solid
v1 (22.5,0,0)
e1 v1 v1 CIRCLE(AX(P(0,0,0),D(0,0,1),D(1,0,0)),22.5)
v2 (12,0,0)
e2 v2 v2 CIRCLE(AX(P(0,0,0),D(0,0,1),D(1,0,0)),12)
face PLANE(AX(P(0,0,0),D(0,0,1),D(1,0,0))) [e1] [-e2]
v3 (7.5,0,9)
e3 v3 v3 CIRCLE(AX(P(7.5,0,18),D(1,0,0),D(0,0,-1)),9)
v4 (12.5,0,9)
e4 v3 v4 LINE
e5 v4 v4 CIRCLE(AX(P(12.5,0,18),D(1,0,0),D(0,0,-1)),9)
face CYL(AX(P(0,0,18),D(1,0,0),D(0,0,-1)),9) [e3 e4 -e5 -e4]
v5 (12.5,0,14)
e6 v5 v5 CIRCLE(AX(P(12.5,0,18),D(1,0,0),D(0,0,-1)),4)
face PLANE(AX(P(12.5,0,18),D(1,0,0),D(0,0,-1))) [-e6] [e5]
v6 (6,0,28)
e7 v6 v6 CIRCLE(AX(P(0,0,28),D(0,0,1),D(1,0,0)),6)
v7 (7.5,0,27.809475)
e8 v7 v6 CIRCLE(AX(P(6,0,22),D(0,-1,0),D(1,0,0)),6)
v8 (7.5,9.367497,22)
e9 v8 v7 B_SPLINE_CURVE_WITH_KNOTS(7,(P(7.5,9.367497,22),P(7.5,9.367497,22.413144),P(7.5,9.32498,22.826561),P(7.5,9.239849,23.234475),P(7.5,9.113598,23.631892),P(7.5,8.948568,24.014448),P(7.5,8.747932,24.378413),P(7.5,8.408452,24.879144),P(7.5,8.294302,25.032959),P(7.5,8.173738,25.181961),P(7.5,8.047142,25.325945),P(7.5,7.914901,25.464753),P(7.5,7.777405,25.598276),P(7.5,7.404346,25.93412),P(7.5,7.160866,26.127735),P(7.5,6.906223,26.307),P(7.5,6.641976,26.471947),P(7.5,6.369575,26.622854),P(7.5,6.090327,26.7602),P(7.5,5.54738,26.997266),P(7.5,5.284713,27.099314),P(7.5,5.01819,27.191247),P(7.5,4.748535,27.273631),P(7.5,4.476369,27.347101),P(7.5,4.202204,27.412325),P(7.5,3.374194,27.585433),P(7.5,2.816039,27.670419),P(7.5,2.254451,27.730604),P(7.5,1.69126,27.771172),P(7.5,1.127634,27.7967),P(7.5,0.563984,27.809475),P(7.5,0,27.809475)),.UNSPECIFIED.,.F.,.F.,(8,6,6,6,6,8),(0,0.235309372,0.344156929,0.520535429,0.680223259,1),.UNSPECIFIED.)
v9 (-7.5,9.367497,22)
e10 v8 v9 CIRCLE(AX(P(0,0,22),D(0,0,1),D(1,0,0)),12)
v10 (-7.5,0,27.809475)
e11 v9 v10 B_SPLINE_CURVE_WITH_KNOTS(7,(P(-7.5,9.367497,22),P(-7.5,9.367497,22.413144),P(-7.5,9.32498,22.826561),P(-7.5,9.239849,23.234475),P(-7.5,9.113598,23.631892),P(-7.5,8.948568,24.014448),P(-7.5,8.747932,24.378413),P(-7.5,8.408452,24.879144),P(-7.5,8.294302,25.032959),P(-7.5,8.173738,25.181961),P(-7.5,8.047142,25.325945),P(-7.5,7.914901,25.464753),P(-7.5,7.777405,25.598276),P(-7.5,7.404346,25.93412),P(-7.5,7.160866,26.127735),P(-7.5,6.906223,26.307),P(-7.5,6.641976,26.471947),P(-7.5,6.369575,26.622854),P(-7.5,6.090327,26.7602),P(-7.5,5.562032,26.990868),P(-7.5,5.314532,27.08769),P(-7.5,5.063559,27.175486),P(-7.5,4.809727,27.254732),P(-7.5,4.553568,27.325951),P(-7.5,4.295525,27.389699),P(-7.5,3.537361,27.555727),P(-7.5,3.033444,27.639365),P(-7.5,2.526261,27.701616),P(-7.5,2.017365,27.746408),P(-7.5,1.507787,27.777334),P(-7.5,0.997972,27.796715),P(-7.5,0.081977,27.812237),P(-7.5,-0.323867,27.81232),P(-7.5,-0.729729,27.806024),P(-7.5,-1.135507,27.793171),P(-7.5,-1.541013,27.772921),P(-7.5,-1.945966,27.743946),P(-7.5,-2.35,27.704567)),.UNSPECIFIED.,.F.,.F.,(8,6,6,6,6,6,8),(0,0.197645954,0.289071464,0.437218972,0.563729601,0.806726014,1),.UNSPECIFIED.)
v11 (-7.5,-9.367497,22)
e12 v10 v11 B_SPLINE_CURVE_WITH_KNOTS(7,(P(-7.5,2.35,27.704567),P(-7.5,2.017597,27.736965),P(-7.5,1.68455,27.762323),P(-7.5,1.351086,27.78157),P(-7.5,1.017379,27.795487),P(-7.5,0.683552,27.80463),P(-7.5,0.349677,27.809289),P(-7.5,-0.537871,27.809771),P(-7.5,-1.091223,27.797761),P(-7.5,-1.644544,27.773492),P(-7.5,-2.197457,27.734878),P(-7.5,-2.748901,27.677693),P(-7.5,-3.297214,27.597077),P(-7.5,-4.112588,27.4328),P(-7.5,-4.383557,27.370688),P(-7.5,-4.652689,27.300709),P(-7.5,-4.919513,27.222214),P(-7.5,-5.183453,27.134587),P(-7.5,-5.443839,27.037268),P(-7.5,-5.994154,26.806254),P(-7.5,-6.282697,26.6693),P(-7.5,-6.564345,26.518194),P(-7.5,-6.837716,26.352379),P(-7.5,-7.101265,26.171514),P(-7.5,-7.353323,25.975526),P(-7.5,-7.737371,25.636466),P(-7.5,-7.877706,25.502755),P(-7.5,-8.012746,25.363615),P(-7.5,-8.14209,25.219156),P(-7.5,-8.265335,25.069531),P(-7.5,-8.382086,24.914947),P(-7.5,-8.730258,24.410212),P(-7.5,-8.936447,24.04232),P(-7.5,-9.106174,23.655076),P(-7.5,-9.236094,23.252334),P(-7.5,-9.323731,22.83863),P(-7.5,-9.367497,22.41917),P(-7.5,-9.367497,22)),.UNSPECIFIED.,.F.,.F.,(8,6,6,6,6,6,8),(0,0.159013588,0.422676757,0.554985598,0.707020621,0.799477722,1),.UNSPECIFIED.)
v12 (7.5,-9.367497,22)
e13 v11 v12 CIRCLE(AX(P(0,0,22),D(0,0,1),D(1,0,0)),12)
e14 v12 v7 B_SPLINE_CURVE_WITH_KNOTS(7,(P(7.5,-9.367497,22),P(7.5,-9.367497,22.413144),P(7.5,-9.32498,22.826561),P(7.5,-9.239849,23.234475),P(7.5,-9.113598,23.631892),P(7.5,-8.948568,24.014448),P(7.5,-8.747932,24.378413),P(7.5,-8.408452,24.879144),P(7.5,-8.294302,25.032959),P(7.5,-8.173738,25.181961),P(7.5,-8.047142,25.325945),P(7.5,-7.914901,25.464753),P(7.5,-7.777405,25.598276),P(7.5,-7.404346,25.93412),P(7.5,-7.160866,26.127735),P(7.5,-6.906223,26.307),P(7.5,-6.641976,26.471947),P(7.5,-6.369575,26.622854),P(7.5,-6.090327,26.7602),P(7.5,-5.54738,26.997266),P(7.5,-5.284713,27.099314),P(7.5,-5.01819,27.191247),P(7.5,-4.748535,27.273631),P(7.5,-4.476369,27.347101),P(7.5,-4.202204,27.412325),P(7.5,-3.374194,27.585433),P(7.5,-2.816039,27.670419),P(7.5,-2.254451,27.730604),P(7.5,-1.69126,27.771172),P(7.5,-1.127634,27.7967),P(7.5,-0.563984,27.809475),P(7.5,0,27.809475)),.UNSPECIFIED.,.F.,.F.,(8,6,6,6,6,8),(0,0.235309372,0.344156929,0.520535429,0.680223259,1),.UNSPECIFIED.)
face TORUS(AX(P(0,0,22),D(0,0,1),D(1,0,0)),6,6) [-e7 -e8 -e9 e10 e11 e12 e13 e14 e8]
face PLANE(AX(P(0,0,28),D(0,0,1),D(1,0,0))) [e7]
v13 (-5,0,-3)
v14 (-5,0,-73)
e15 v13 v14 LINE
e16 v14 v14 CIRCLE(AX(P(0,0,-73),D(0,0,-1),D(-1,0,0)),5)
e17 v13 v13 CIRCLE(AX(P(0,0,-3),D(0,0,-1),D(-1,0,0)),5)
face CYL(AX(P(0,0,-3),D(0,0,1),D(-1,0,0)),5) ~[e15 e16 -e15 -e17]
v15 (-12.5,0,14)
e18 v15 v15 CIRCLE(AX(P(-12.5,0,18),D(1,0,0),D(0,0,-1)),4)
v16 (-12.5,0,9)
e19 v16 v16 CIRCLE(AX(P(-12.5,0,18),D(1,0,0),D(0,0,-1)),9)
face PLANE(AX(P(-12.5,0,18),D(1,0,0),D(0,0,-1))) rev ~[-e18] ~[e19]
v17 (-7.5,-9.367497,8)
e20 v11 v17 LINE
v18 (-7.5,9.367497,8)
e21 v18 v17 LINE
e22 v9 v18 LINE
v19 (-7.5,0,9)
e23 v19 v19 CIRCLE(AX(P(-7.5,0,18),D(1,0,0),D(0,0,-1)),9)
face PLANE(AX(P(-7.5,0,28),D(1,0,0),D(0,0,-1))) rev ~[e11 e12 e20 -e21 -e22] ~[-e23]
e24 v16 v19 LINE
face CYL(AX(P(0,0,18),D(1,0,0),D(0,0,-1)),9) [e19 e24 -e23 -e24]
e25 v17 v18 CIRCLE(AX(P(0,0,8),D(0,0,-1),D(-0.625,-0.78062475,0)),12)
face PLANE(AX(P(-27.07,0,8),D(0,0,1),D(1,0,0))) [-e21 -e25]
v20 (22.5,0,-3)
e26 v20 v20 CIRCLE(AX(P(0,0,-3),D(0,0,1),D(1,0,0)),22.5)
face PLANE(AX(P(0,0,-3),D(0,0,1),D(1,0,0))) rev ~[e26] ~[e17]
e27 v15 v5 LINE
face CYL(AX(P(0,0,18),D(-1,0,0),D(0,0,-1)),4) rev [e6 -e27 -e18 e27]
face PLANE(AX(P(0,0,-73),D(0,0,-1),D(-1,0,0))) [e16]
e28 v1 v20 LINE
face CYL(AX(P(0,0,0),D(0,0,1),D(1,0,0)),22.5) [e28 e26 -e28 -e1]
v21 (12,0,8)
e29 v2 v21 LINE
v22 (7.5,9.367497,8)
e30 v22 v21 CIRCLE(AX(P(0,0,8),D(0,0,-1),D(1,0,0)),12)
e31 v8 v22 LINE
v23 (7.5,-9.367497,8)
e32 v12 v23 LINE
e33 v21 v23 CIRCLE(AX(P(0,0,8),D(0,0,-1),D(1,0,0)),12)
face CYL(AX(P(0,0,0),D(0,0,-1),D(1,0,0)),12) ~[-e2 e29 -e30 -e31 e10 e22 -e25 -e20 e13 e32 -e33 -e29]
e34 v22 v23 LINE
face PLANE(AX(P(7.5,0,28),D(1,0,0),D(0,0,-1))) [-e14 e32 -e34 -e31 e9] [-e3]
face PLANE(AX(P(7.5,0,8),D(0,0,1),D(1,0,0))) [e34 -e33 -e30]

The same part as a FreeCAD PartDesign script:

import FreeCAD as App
import Part
import Sketcher
from FreeCAD import Vector
Q = App.Units.Quantity


def edges_at(feature, points):
    """Names of the edges that pass closest to the given points."""
    edges = feature.Shape.Edges
    near = lambda p: min(range(len(edges)), key=lambda i: edges[i].distToShape(Part.Vertex(*p))[0])
    return sorted({f"Edge{near(p) + 1}" for p in points})


def add_polygon(sketch, points):
    """Adds a closed chain of lines whose ends are joined by coincident constraints."""
    first, n = sketch.GeometryCount, len(points)
    for a, b in zip(points, points[1:] + points[:1]):
        sketch.addGeometry(Part.LineSegment(App.Vector(*a, 0), App.Vector(*b, 0)), False)
    for i in range(n):
        sketch.addConstraint(Sketcher.Constraint("Coincident", first + i, 2, first + (i + 1) % n, 1))

doc = App.newDocument("Part")
body = doc.addObject("PartDesign::Body", "Body")

sketch1 = body.newObject("Sketcher::SketchObject", "Sketch")
sketch1.AttachmentSupport = (doc.getObject("XY_Plane"), [""])
sketch1.MapMode = "FlatFace"
sketch1.addGeometry(Part.Circle(Vector(0, 0, 0), Vector(0, 0, 1), 22), False)
sketch1.addConstraint([
    Sketcher.Constraint("Coincident", 0, 3, -1, 1),
    Sketcher.Constraint("Diameter", 0, Q("45 mm")),
])
pad1 = body.newObject("PartDesign::Pad", "Pad")
pad1.Profile = sketch1
pad1.Length = 3
pad1.Reversed = True

sketch2 = body.newObject("Sketcher::SketchObject", "Sketch001")
sketch2.AttachmentSupport = (doc.getObject("XY_Plane"), [""])
sketch2.MapMode = "FlatFace"
sketch2.AttachmentOffset = App.Placement(Vector(0, 0, -3), App.Rotation())
sketch2.addGeometry(Part.Circle(Vector(0, 0, 0), Vector(0, 0, 1), 5), False)
sketch2.addConstraint([
    Sketcher.Constraint("Coincident", 0, 3, -1, 1),
    Sketcher.Constraint("Diameter", 0, Q("10 mm")),
])
pad2 = body.newObject("PartDesign::Pad", "Pad001")
pad2.Profile = sketch2
pad2.Length = 70
pad2.Reversed = True

sketch3 = body.newObject("Sketcher::SketchObject", "Sketch002")
sketch3.AttachmentSupport = (doc.getObject("XY_Plane"), [""])
sketch3.MapMode = "FlatFace"
sketch3.addGeometry(Part.Circle(Vector(0, 0, 0), Vector(0, 0, 1), 12), False)
sketch3.addConstraint([
    Sketcher.Constraint("Coincident", 0, 3, -1, 1),
    Sketcher.Constraint("Diameter", 0, Q("24 mm")),
])
pad3 = body.newObject("PartDesign::Pad", "Pad002")
pad3.Profile = sketch3
pad3.Length = 28
doc.recompute()

fillet = body.newObject("PartDesign::Fillet", "Fillet")
fillet.Base = (pad3, edges_at(pad3, [(-12, 0, 28)]))
fillet.Radius = 6

sketch4 = body.newObject("Sketcher::SketchObject", "Sketch003")
sketch4.AttachmentSupport = (doc.getObject("XZ_Plane"), [""])
sketch4.MapMode = "FlatFace"
add_polygon(sketch4, [(8, 8), (8, 28), (27, 28), (27, 8)])
add_polygon(sketch4, [(-27, 8), (-27, 28), (-8, 28), (-8, 8)])
sketch4.addConstraint([
    Sketcher.Constraint("Vertical", 0),
    Sketcher.Constraint("Horizontal", 1),
    Sketcher.Constraint("Vertical", 2),
    Sketcher.Constraint("Horizontal", 3),
    Sketcher.Constraint("Vertical", 4),
    Sketcher.Constraint("Horizontal", 5),
    Sketcher.Constraint("Vertical", 6),
    Sketcher.Constraint("Horizontal", 7),
    Sketcher.Constraint("Symmetric", 1, 2, 4, 2, -2),
    Sketcher.Constraint("Symmetric", 3, 2, 6, 2, -2),
    Sketcher.Constraint("DistanceY", 0, 1, 0, 2, Q("20 mm")),
    Sketcher.Constraint("DistanceY", -1, 1, 0, 2, Q("28 mm")),
    Sketcher.Constraint("DistanceX", 5, 2, 0, 2, Q("15 mm")),
    Sketcher.Constraint("DistanceX", 1, 1, 1, 2, Q("19.57 mm")),
])
pocket1 = body.newObject("PartDesign::Pocket", "Pocket")
pocket1.Profile = sketch4
pocket1.Type = "ThroughAll"
pocket1.Midplane = True

sketch5 = body.newObject("Sketcher::SketchObject", "Sketch004")
sketch5.AttachmentSupport = (doc.getObject("YZ_Plane"), [""])
sketch5.MapMode = "FlatFace"
sketch5.AttachmentOffset = App.Placement(Vector(0, 0, 7.5), App.Rotation())
sketch5.addGeometry(Part.Circle(Vector(0, 18, 0), Vector(0, 0, 1), 4), False)
sketch5.addConstraint([
    Sketcher.Constraint("PointOnObject", 0, 3, -2),
    Sketcher.Constraint("Diameter", 0, Q("8 mm")),
    Sketcher.Constraint("DistanceY", -1, 1, 0, 3, Q("18 mm")),
])
pocket2 = body.newObject("PartDesign::Pocket", "Pocket001")
pocket2.Profile = sketch5
pocket2.Type = "ThroughAll"
pocket2.Midplane = True

sketch6 = body.newObject("Sketcher::SketchObject", "Sketch005")
sketch6.AttachmentSupport = (doc.getObject("YZ_Plane"), [""])
sketch6.MapMode = "FlatFace"
sketch6.addGeometry([
    Part.Circle(Vector(0, 18, 0), Vector(0, 0, 1), 9),
    Part.Circle(Vector(0, 18, 0), Vector(0, 0, 1), 4),
], False)
sketch6.addConstraint([
    Sketcher.Constraint("Coincident", 1, 3, 0, 3),
    Sketcher.Constraint("PointOnObject", 0, 3, -2),
    Sketcher.Constraint("Diameter", 0, Q("18 mm")),
    Sketcher.Constraint("Diameter", 1, Q("8 mm")),
    Sketcher.Constraint("DistanceY", -1, 1, 0, 3, Q("18 mm")),
])
pad4 = body.newObject("PartDesign::Pad", "Pad003")
pad4.Profile = sketch6
pad4.Length = 25
pad4.Midplane = True

doc.recompute()
